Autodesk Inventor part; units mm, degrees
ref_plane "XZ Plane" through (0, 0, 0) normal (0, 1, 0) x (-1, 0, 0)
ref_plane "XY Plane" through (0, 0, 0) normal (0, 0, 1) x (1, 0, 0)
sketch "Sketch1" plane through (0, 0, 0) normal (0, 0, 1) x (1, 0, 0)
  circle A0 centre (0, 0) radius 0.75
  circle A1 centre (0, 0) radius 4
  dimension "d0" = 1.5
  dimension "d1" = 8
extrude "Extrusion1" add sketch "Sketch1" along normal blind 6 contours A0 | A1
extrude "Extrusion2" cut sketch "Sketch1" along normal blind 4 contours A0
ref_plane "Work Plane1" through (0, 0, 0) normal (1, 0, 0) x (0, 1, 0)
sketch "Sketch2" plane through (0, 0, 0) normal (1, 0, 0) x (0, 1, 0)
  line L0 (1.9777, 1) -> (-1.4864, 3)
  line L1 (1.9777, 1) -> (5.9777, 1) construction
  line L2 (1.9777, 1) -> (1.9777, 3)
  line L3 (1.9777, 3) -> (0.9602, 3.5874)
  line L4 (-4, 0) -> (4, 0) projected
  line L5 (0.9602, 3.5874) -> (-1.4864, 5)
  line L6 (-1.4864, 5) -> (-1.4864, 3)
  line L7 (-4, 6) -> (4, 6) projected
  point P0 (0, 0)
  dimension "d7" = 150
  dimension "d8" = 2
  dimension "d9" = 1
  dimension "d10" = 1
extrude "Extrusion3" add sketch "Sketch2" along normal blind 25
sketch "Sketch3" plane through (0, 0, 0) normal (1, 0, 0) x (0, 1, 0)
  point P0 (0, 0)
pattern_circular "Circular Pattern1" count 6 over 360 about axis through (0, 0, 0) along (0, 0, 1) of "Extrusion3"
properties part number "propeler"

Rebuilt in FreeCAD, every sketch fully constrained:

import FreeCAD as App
import Part
import Sketcher
from FreeCAD import Vector
Q = App.Units.Quantity

doc = App.newDocument("Part")
body = doc.addObject("PartDesign::Body", "Body")

# Sketch on XY plane
sketch1 = body.newObject("Sketcher::SketchObject", "Sketch")
sketch1.AttachmentSupport = (doc.getObject("XY_Plane"), [""])
sketch1.MapMode = "FlatFace"
sketch1.addGeometry(Part.Circle(Vector(0, 0, 0), Vector(0, 0, 1), 4), False)
sketch1.addConstraint([
    Sketcher.Constraint("Coincident", 0, 3, -1, 1),
    Sketcher.Constraint("Diameter", 0, Q("8 mm")),
])
pad1 = body.newObject("PartDesign::Pad", "Pad")
pad1.Profile = sketch1
pad1.Length = 6

# Sketch on XY plane
sketch2 = body.newObject("Sketcher::SketchObject", "Sketch001")
sketch2.AttachmentSupport = (doc.getObject("XY_Plane"), [""])
sketch2.MapMode = "FlatFace"
sketch2.addGeometry(Part.Circle(Vector(0, 0, 0), Vector(0, 0, 1), 0.75), False)
sketch2.addConstraint([
    Sketcher.Constraint("Coincident", 0, 3, -1, 1),
    Sketcher.Constraint("Diameter", 0, Q("1.5 mm")),
])
pocket1 = body.newObject("PartDesign::Pocket", "Pocket")
pocket1.Profile = sketch2
pocket1.Length = 4
pocket1.Reversed = True

# Sketch on YZ plane
sketch3 = body.newObject("Sketcher::SketchObject", "Sketch002")
sketch3.AttachmentSupport = (doc.getObject("YZ_Plane"), [""])
sketch3.MapMode = "FlatFace"
sketch3.addGeometry([
    Part.LineSegment(Vector(-1.4864, 3, 0), Vector(1.9777, 1, 0)),  # 0
    Part.LineSegment(Vector(1.9777, 1, 0), Vector(1.9777, 3, 0)),  # 1
    Part.LineSegment(Vector(1.9777, 3, 0), Vector(0.9602, 3.5874, 0)),  # 2
    Part.LineSegment(Vector(0.9602, 3.5874, 0), Vector(-1.4864, 5, 0)),  # 3
    Part.LineSegment(Vector(-1.4864, 5, 0), Vector(-1.4864, 3, 0)),  # 4
], False)
sketch3.addConstraint([
    Sketcher.Constraint("Coincident", 0, 2, 1, 1),
    Sketcher.Constraint("Coincident", 1, 2, 2, 1),
    Sketcher.Constraint("Coincident", 2, 2, 3, 1),
    Sketcher.Constraint("Coincident", 3, 2, 4, 1),
    Sketcher.Constraint("Coincident", 4, 2, 0, 1),
    Sketcher.Constraint("Vertical", 1),
    Sketcher.Constraint("Vertical", 4),
    Sketcher.Constraint("Parallel", 0, 2),
    Sketcher.Constraint("Parallel", 2, 3),
    Sketcher.Constraint("Horizontal", 1, 2, 4, 2),
    Sketcher.Constraint("DistanceY", 1, 1, 1, 2, Q("2 mm")),
    Sketcher.Constraint("DistanceY", -1, 1, 0, 2, Q("1 mm")),
    Sketcher.Constraint("Angle", 0, Q("-30 deg")),
    Sketcher.Constraint("Distance", 2, Q("1.175 mm")),
    Sketcher.Constraint("DistanceX", -1, 1, 0, 2, Q("1.9777 mm")),
])
pad2 = body.newObject("PartDesign::Pad", "Pad001")
pad2.Profile = sketch3
pad2.Length = 25
doc.recompute()

polarpattern = body.newObject("PartDesign::PolarPattern", "PolarPattern")
polarpattern.Originals = [pad2]
polarpattern.Axis = (doc.getObject("Z_Axis"), [""])
polarpattern.Angle = 360
polarpattern.Occurrences = 6
body.Tip = polarpattern

doc.recompute()
